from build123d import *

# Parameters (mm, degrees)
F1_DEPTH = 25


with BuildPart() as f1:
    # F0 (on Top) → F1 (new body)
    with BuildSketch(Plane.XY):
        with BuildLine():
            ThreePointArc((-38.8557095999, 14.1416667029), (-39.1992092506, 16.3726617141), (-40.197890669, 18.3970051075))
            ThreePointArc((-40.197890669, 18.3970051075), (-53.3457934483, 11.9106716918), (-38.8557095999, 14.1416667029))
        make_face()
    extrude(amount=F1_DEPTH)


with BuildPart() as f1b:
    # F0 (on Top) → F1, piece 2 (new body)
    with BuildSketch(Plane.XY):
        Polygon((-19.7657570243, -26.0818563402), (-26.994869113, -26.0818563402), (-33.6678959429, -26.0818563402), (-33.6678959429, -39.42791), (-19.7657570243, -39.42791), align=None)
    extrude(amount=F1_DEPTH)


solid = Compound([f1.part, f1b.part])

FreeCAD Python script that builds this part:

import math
import FreeCAD as App
import Part
import Sketcher
from FreeCAD import Vector

doc = App.newDocument("Part")
body = doc.addObject("PartDesign::Body", "Body")

# Sketch on XY plane
sketch1 = doc.addObject("Sketcher::SketchObject", "Sketch")
body.addObject(sketch1)
sketch1.AttachmentSupport = (doc.XY_Plane, [""])
sketch1.MapMode = "FlatFace"
sketch1.addGeometry(Part.ArcOfCircle(Part.Circle(Vector(-46.3, 14.1, 0), Vector(0, 0, 1), 7.4), math.radians(0), math.radians(35)), False)
sketch1.addGeometry(Part.ArcOfCircle(Part.Circle(Vector(-46.3, 14.1, 0), Vector(0, 0, 1), 7.4), math.radians(35), math.radians(360)), False)
sketch1.addConstraint(Sketcher.Constraint("Tangent", 0, 1, 1, 2))
sketch1.addConstraint(Sketcher.Constraint("Coincident", 1, 1, 0, 2))
sketch1.addConstraint(Sketcher.Constraint("Horizontal", 1, 3, 0, 1))
sketch1.addConstraint(Sketcher.Constraint("Radius", 0, 7.416792))
sketch1.addConstraint(Sketcher.Constraint("DistanceX", 0, 3, -1, 1, 46.272501))
sketch1.addConstraint(Sketcher.Constraint("DistanceX", 1, 1, -1, 1, 40.197891))
sketch1.addConstraint(Sketcher.Constraint("DistanceY", -1, 1, 0, 3, 14.141667))
pad1 = doc.addObject("PartDesign::Pad", "Pad")
body.addObject(pad1)
pad1.Profile = sketch1
pad1.Length = 25
body2 = doc.addObject("PartDesign::Body", "Body001")

# Sketch on XY plane
sketch2 = doc.addObject("Sketcher::SketchObject", "Sketch001")
body2.addObject(sketch2)
sketch2.AttachmentSupport = (doc.getObject("XY_Plane001"), [""])
sketch2.MapMode = "FlatFace"
sketch2.addGeometry(Part.LineSegment(Vector(-20, -26, 0), Vector(-34, -26, 0)), False)
sketch2.addGeometry(Part.LineSegment(Vector(-34, -26, 0), Vector(-34, -39, 0)), False)
sketch2.addGeometry(Part.LineSegment(Vector(-34, -39, 0), Vector(-20, -39, 0)), False)
sketch2.addGeometry(Part.LineSegment(Vector(-20, -39, 0), Vector(-20, -26, 0)), False)
sketch2.addConstraint(Sketcher.Constraint("Coincident", 0, 2, 1, 1))
sketch2.addConstraint(Sketcher.Constraint("Coincident", 1, 2, 2, 1))
sketch2.addConstraint(Sketcher.Constraint("Coincident", 2, 2, 3, 1))
sketch2.addConstraint(Sketcher.Constraint("Coincident", 3, 2, 0, 1))
sketch2.addConstraint(Sketcher.Constraint("Horizontal", 0))
sketch2.addConstraint(Sketcher.Constraint("Vertical", 1))
sketch2.addConstraint(Sketcher.Constraint("Horizontal", 2))
sketch2.addConstraint(Sketcher.Constraint("Vertical", 3))
sketch2.addConstraint(Sketcher.Constraint("DistanceX", 0, 2, 0, 1, 13.902139))
sketch2.addConstraint(Sketcher.Constraint("DistanceY", 1, 2, 1, 1, 13.346054))
sketch2.addConstraint(Sketcher.Constraint("DistanceY", 1, 2, -1, 1, 39.42791))
sketch2.addConstraint(Sketcher.Constraint("DistanceX", 0, 2, -1, 1, 33.667896))
pad2 = doc.addObject("PartDesign::Pad", "Pad001")
body2.addObject(pad2)
pad2.Profile = sketch2
pad2.Length = 25

doc.recompute()
